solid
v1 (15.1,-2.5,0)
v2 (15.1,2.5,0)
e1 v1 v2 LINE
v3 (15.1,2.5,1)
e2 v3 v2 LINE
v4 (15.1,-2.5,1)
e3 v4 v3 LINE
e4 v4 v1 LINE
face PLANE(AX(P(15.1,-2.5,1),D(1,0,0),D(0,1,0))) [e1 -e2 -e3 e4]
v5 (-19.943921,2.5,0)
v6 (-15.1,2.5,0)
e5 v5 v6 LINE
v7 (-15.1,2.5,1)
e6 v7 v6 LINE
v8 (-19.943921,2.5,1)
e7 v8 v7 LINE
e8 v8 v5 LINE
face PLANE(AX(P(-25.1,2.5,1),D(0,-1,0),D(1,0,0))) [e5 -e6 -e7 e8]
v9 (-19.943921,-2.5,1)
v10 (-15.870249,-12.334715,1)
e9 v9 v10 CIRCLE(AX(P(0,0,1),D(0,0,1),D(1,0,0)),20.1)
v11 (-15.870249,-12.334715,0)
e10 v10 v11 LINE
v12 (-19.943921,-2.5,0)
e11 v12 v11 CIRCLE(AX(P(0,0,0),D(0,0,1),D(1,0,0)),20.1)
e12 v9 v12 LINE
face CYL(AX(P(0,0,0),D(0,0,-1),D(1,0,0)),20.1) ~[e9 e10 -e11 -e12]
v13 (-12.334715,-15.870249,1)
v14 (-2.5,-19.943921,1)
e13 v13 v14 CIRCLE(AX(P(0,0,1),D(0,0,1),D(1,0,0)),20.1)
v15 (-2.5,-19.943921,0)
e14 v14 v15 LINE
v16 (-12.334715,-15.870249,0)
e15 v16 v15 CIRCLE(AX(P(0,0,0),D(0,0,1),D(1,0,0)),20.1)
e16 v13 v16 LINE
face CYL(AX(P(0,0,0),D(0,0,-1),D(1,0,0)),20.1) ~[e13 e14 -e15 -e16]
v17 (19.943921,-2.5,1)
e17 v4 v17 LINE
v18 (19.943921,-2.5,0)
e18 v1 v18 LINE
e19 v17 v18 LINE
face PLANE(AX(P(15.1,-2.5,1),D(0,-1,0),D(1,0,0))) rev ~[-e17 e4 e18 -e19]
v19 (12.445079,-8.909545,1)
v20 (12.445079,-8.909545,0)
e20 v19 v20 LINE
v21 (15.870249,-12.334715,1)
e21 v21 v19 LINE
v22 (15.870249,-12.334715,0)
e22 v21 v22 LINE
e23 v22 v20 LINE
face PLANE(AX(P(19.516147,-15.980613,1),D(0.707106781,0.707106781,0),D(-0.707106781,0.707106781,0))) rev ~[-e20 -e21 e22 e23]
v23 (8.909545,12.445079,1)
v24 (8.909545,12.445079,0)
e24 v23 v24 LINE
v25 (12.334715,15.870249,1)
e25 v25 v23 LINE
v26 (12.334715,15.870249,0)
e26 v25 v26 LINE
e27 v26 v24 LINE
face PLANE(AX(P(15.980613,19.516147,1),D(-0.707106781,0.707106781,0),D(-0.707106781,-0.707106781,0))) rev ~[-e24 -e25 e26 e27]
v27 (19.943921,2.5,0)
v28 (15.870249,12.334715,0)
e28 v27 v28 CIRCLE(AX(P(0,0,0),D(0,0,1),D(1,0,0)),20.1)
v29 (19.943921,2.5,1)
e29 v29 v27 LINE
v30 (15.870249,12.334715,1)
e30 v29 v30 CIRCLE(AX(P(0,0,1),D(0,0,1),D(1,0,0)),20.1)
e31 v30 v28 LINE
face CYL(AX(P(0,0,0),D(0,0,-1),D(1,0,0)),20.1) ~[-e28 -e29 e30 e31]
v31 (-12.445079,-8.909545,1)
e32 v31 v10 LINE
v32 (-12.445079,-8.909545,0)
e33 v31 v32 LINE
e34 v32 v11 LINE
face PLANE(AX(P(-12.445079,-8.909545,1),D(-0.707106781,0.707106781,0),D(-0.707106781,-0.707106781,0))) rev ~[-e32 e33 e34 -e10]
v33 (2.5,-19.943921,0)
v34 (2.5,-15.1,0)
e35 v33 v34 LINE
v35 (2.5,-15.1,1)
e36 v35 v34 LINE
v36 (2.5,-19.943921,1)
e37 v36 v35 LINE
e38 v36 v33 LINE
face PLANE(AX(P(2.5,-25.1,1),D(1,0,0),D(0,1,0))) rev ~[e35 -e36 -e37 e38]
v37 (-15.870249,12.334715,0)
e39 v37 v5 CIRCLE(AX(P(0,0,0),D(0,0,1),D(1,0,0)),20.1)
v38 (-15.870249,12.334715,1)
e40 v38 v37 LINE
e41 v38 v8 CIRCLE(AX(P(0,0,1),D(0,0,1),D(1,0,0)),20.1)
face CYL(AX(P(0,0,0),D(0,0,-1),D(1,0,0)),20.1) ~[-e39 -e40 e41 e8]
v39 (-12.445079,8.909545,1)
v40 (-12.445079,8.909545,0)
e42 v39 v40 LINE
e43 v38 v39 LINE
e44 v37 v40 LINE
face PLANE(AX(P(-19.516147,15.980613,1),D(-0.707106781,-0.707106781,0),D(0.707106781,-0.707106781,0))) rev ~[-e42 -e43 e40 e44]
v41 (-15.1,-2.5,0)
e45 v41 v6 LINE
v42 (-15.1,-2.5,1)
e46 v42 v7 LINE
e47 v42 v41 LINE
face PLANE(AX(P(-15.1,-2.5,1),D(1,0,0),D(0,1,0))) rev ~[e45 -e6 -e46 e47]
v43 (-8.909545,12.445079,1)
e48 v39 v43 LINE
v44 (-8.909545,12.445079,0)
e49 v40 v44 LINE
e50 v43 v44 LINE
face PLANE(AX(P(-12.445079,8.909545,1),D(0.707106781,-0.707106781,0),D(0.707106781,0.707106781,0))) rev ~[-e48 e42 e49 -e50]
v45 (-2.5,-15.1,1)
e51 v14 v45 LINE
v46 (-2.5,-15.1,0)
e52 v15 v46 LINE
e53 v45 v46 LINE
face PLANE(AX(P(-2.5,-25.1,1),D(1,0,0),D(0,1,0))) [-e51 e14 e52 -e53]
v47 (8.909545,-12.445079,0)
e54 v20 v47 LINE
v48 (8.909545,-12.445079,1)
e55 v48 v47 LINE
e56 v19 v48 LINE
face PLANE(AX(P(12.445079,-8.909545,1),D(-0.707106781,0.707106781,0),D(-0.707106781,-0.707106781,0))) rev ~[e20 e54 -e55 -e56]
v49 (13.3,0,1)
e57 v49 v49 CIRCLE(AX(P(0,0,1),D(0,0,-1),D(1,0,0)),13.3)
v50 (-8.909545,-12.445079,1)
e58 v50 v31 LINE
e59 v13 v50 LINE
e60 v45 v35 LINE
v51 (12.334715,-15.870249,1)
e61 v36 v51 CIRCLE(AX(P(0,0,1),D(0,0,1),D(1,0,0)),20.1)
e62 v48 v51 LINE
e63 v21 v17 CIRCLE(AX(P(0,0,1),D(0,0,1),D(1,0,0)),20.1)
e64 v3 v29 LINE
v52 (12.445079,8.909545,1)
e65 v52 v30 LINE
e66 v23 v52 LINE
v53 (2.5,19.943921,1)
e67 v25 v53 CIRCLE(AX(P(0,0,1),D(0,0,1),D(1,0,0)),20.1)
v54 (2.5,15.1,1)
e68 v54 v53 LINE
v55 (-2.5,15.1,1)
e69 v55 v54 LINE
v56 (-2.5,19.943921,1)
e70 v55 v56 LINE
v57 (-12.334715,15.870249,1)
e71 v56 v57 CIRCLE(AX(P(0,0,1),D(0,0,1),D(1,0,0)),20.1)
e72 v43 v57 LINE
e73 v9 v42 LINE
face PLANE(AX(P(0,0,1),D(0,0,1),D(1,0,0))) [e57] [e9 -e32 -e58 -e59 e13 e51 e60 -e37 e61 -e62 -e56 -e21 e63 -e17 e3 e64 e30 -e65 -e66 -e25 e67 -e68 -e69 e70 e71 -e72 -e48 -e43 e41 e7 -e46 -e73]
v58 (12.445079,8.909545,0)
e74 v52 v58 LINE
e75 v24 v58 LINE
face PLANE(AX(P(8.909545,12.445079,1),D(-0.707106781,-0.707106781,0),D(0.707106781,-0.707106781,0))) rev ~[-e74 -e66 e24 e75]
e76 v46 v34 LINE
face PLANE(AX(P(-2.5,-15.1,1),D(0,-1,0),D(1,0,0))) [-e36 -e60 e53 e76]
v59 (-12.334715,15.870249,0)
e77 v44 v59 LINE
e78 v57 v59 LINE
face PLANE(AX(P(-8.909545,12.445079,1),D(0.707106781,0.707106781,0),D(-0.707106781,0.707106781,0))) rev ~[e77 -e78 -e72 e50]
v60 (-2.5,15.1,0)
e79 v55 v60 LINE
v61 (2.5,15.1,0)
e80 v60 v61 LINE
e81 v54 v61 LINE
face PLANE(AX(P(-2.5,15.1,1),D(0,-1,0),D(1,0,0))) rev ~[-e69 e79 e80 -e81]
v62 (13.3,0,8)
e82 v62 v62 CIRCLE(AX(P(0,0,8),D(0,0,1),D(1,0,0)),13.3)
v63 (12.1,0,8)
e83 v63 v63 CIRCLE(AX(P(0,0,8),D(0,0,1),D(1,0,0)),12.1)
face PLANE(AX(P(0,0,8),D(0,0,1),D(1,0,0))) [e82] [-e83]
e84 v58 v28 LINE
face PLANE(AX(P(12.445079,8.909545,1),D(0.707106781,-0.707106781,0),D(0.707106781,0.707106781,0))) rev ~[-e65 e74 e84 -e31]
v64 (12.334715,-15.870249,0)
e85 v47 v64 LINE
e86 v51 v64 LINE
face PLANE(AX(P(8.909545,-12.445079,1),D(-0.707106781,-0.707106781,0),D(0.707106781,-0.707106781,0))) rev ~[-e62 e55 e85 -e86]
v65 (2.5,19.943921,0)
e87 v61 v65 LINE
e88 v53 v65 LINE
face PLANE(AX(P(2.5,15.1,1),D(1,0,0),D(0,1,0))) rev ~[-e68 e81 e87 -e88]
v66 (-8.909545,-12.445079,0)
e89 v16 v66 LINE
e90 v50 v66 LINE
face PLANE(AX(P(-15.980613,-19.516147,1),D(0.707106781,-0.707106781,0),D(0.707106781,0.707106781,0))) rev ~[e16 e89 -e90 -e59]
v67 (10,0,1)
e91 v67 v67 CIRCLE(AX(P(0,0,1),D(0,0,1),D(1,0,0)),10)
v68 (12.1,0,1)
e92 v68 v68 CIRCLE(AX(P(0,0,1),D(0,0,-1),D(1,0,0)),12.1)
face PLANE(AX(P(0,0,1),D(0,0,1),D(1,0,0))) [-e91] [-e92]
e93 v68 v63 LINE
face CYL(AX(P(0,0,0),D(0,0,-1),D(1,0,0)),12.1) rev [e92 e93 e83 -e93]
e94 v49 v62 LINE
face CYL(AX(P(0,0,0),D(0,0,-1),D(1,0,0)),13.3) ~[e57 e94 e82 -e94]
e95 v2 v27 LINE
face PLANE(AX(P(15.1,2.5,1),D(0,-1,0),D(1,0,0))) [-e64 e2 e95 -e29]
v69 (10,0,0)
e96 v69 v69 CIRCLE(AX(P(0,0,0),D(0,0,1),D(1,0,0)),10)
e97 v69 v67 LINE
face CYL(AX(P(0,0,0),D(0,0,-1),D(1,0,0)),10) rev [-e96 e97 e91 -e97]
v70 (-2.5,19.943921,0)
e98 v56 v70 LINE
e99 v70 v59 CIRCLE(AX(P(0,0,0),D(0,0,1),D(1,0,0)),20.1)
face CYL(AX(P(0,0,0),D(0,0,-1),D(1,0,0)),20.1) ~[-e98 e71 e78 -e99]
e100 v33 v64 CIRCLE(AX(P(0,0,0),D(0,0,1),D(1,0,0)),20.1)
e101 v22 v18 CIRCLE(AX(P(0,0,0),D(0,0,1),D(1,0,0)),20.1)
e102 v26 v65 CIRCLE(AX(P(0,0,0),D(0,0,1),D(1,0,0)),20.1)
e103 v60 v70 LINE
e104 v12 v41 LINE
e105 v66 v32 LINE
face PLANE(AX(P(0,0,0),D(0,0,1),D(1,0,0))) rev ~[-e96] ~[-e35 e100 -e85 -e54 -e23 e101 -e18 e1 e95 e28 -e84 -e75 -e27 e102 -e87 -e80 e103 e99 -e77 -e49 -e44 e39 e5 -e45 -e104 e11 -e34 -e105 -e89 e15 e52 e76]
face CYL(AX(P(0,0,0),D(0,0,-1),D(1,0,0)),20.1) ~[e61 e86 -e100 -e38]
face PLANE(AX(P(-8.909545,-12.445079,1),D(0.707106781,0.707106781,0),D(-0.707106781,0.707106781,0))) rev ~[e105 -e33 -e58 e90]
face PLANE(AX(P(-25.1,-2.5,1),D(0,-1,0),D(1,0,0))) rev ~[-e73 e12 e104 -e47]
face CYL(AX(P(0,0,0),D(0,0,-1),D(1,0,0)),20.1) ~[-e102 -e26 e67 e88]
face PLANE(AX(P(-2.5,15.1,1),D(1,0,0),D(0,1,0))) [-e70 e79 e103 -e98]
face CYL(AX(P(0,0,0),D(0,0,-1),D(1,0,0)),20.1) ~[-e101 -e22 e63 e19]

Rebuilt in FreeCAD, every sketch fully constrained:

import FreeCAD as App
import Part
import Sketcher
from FreeCAD import Vector


def add_polygon(sketch, points):
    """Adds a closed chain of lines whose ends are joined by coincident constraints."""
    first, n = sketch.GeometryCount, len(points)
    for a, b in zip(points, points[1:] + points[:1]):
        sketch.addGeometry(Part.LineSegment(App.Vector(*a, 0), App.Vector(*b, 0)), False)
    for i in range(n):
        sketch.addConstraint(Sketcher.Constraint("Coincident", first + i, 2, first + (i + 1) % n, 1))

doc = App.newDocument("Part")
body = doc.addObject("PartDesign::Body", "Body")

# Sketch on XY plane
sketch1 = doc.addObject("Sketcher::SketchObject", "Sketch")
body.addObject(sketch1)
sketch1.AttachmentSupport = (doc.XY_Plane, [""])
sketch1.MapMode = "FlatFace"
sketch1.addGeometry([
    Part.Circle(Vector(0, 0, 0), Vector(0, 0, 1), 20),
    Part.Circle(Vector(0, 0, 0), Vector(0, 0, 1), 10),
], False)
sketch1.addConstraint([
    Sketcher.Constraint("Coincident", 0, 3, -1, 1),
    Sketcher.Constraint("Coincident", 1, 3, -1, 1),
    Sketcher.Constraint("Diameter", 1, 20.0),
    Sketcher.Constraint("Diameter", 0, 40.2),
])
pad1 = doc.addObject("PartDesign::Pad", "Pad")
body.addObject(pad1)
pad1.Profile = sketch1
pad1.Length = 1

# Sketch on XY plane
sketch2 = doc.addObject("Sketcher::SketchObject", "Sketch001")
body.addObject(sketch2)
sketch2.AttachmentSupport = (doc.XY_Plane, [""])
sketch2.MapMode = "FlatFace"
sketch2.addGeometry([
    Part.Circle(Vector(0, 0, 0), Vector(0, 0, 1), 13),
    Part.Circle(Vector(0, 0, 0), Vector(0, 0, 1), 12),
], False)
sketch2.addConstraint([
    Sketcher.Constraint("Coincident", 0, 3, -1, 1),
    Sketcher.Constraint("Coincident", 1, 3, -1, 1),
    Sketcher.Constraint("Diameter", 0, 26.6),
    Sketcher.Constraint("Diameter", 1, 24.2),
])
pad2 = doc.addObject("PartDesign::Pad", "Pad001")
body.addObject(pad2)
pad2.Profile = sketch2
pad2.Length = 8

# Sketch on XY plane
sketch3 = doc.addObject("Sketcher::SketchObject", "Sketch002")
body.addObject(sketch3)
sketch3.AttachmentSupport = (doc.XY_Plane, [""])
sketch3.MapMode = "FlatFace"
sketch3.AttachmentOffset = App.Placement(Vector(0, 0, 1), App.Rotation())
add_polygon(sketch3, [(-2, 25), (-2, 15), (2, 15), (2, 25)])  # lines 0-3
add_polygon(sketch3, [(-9, 12), (-16, 20), (-20, 16), (-12, 9)])  # lines 4-7
add_polygon(sketch3, [(-25, 2), (-25, -2), (-15, -2), (-15, 2)])  # lines 8-11
add_polygon(sketch3, [(-12, -9), (-20, -16), (-16, -20), (-9, -12)])  # lines 12-15
add_polygon(sketch3, [(-2, -15), (-2, -25), (2, -25), (2, -15)])  # lines 16-19
add_polygon(sketch3, [(9, -12), (16, -20), (20, -16), (12, -9)])  # lines 20-23
add_polygon(sketch3, [(15, 2), (15, -2), (25, -2), (25, 2)])  # lines 24-27
add_polygon(sketch3, [(12, 9), (20, 16), (16, 20), (9, 12)])  # lines 28-31
sketch3.addConstraint([
    Sketcher.Constraint("Vertical", 0),
    Sketcher.Constraint("Horizontal", 1),
    Sketcher.Constraint("Vertical", 2),
    Sketcher.Constraint("Horizontal", 3),
    Sketcher.Constraint("Vertical", 8),
    Sketcher.Constraint("Horizontal", 9),
    Sketcher.Constraint("Vertical", 10),
    Sketcher.Constraint("Horizontal", 11),
    Sketcher.Constraint("Vertical", 16),
    Sketcher.Constraint("Horizontal", 17),
    Sketcher.Constraint("Vertical", 18),
    Sketcher.Constraint("Horizontal", 19),
    Sketcher.Constraint("Vertical", 24),
    Sketcher.Constraint("Horizontal", 25),
    Sketcher.Constraint("Vertical", 26),
    Sketcher.Constraint("Horizontal", 27),
    Sketcher.Constraint("Symmetric", 2, 2, 16, 2, -1, 1),
    Sketcher.Constraint("Symmetric", 0, 2, 18, 2, -1, 1),
    Sketcher.Constraint("Symmetric", 4, 2, 20, 2, -1, 1),
    Sketcher.Constraint("Symmetric", 5, 2, 21, 2, -1, 1),
    Sketcher.Constraint("Symmetric", 6, 2, 22, 2, -1, 1),
    Sketcher.Constraint("Symmetric", 7, 2, 23, 2, -1, 1),
    Sketcher.Constraint("Symmetric", 10, 2, 24, 2, -1, 1),
    Sketcher.Constraint("Symmetric", 8, 2, 26, 2, -1, 1),
    Sketcher.Constraint("Symmetric", 12, 2, 28, 2, -1, 1),
    Sketcher.Constraint("Symmetric", 13, 2, 29, 2, -1, 1),
    Sketcher.Constraint("Symmetric", 14, 2, 30, 2, -1, 1),
    Sketcher.Constraint("Symmetric", 15, 2, 31, 2, -1, 1),
    Sketcher.Constraint("Symmetric", 13, 2, 20, 2, -2),
    Sketcher.Constraint("Symmetric", 12, 2, 21, 2, -2),
    Sketcher.Constraint("Symmetric", 15, 2, 22, 2, -2),
    Sketcher.Constraint("Symmetric", 14, 2, 23, 2, -2),
    Sketcher.Constraint("Perpendicular", 4, 5),
    Sketcher.Constraint("Perpendicular", 5, 6),
    Sketcher.Constraint("Perpendicular", 6, 7),
    Sketcher.Constraint("Parallel", 7, 12),
    Sketcher.Constraint("Horizontal", 9, 2, 24, 2),
    Sketcher.Constraint("Vertical", 3, 2, 16, 2),
    Sketcher.Constraint("Equal", 27, 0),
    Sketcher.Constraint("Equal", 19, 8),
    Sketcher.Constraint("DistanceX", 1, 1, 1, 2, 5.0),
    Sketcher.Constraint("DistanceX", 9, 1, 9, 2, 10.0),
    Sketcher.Constraint("Distance", 4, 10.0),
    Sketcher.Constraint("Distance", 5, 5.0),
    Sketcher.Constraint("DistanceY", -1, 1, 0, 2, 15.1),
    Sketcher.Constraint("DistanceX", 8, 2, -1, 1, 25.1),
    Sketcher.Constraint("DistanceX", 6, 2, -1, 1, 12.445079),
    Sketcher.Constraint("DistanceY", -1, 1, 7, 2, 12.445079),
])
pocket1 = doc.addObject("PartDesign::Pocket", "Pocket")
body.addObject(pocket1)
pocket1.Profile = sketch3
pocket1.Type = "ThroughAll"

doc.recompute()
